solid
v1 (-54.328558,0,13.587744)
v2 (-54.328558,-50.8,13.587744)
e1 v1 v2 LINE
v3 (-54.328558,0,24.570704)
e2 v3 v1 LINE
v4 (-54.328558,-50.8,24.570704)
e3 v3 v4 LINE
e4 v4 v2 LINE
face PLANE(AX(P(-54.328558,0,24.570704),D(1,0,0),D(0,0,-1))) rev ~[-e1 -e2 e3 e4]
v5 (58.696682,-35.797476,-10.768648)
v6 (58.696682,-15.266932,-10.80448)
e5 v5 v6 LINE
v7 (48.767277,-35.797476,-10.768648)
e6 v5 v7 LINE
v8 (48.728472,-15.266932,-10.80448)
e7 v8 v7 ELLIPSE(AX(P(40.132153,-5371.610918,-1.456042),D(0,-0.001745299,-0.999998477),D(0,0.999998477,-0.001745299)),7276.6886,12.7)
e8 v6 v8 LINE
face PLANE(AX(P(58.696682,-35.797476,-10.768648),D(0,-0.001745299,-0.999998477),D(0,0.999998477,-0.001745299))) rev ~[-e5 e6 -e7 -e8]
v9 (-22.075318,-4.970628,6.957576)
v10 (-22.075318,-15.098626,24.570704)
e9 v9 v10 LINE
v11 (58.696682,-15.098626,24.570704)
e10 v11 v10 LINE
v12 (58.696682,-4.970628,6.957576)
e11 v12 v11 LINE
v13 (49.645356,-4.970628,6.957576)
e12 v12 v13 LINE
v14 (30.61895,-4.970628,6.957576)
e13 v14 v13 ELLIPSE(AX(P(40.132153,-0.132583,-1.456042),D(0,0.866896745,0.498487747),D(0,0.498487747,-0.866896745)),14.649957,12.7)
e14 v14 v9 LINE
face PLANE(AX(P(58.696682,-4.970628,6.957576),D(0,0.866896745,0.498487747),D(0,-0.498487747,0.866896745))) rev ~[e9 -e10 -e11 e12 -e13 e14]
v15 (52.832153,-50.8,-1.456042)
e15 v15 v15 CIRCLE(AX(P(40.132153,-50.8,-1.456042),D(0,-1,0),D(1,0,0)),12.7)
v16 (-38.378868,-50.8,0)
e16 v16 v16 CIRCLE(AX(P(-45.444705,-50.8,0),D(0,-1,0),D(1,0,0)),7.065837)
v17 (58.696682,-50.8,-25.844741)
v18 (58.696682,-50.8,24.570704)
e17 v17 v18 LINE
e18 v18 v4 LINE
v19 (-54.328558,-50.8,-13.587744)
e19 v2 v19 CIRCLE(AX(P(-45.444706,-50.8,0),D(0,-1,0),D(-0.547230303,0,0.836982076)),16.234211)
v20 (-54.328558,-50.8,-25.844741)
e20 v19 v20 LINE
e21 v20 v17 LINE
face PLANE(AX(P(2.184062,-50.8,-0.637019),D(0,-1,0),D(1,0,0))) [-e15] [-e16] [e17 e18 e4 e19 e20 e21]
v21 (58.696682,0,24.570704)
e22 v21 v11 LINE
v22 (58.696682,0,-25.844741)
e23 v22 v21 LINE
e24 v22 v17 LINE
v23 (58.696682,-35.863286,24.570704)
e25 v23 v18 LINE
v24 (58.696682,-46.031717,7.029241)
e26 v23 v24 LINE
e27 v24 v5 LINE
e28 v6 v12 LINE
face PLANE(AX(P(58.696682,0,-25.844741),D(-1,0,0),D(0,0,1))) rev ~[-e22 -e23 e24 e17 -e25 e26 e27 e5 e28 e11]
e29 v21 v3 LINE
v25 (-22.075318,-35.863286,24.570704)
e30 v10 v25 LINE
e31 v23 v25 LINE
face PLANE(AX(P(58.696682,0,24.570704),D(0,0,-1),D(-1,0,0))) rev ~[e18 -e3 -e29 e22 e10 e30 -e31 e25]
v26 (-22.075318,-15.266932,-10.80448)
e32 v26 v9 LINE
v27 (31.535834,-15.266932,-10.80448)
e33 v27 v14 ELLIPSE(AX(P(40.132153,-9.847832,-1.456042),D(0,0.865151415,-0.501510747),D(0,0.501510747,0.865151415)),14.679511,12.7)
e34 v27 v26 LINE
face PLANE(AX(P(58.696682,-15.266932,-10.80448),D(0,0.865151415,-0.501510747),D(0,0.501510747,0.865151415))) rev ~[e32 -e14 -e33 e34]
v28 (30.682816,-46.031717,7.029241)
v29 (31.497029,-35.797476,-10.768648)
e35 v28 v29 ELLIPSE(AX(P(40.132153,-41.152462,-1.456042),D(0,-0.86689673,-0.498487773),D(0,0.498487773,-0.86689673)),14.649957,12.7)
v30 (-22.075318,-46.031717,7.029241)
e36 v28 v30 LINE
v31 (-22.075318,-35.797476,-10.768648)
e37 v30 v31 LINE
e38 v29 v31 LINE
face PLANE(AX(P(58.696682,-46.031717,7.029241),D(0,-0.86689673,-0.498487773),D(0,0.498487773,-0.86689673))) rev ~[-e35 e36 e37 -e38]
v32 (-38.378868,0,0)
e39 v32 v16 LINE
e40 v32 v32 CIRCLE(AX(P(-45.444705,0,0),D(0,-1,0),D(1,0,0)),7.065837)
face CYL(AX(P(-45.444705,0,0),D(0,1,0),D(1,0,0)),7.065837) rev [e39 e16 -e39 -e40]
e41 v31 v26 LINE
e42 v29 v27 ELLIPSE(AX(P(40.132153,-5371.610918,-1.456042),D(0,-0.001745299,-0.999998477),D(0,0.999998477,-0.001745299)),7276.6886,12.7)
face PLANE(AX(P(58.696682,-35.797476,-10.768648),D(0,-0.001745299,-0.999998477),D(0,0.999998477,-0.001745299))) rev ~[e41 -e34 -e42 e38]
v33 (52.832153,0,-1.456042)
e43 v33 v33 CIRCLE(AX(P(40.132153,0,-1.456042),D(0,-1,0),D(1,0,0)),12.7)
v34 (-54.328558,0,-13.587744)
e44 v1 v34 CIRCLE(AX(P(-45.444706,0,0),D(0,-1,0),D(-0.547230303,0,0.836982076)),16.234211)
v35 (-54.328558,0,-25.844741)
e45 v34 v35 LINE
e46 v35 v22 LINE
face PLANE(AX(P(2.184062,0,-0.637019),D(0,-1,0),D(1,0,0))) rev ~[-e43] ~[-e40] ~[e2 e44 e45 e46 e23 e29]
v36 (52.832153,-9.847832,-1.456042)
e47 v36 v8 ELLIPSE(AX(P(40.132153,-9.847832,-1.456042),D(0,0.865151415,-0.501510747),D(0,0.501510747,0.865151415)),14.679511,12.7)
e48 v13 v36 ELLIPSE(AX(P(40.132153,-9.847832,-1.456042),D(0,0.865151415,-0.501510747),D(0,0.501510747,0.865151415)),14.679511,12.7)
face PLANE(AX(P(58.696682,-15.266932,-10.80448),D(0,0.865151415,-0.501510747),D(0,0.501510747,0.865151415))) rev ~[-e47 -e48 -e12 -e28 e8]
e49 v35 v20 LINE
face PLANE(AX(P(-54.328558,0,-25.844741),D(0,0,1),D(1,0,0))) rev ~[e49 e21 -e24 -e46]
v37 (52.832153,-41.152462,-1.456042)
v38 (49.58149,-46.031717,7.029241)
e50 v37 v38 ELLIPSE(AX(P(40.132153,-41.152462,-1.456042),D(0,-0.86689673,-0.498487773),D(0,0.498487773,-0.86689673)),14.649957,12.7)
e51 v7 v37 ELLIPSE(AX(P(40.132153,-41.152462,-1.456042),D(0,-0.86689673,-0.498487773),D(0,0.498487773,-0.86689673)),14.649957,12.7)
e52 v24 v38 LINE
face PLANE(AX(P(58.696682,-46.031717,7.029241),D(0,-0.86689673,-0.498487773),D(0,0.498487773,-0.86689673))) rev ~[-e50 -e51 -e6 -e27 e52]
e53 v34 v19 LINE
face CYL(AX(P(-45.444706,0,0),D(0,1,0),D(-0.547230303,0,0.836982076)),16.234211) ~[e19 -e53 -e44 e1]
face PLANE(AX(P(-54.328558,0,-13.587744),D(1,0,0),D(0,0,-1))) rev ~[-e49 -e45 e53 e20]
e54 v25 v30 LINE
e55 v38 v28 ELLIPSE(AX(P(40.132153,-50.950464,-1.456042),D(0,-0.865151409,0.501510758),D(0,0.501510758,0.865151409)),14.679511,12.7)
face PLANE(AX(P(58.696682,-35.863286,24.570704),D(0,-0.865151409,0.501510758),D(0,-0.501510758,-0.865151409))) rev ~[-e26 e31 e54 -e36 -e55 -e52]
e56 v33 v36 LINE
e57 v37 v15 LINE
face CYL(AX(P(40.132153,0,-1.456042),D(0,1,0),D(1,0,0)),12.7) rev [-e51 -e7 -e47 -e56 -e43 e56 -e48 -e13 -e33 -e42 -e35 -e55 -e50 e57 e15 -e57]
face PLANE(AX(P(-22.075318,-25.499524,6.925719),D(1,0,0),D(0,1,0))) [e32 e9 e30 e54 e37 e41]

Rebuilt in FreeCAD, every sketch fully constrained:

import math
import FreeCAD as App
import Part
import Sketcher
Q = App.Units.Quantity

doc = App.newDocument("Part")
params = doc.addObject("Spreadsheet::Sheet", "Params")
for row, (alias, value) in enumerate([
    ("sketch1_diameter", "1 in"),
    ("pad1_length", "2 in"),
    ("pocket1_length", "3.18 in"),
], start=1):
    params.set(f"A{row}", alias)
    params.set(f"B{row}", "=" + value)
    params.setAlias(f"B{row}", alias)

body = doc.addObject("PartDesign::Body", "Body")

sketch1 = body.newObject("Sketcher::SketchObject", "Sketch")
sketch1.AttachmentSupport = (doc.getObject("XZ_Plane"), [""])
sketch1.MapMode = "FlatFace"
sketch1.addGeometry([
    Part.LineSegment(App.Vector(58.696682, 24.570704, 0), App.Vector(-54.328558, 24.570704, 0)),
    Part.LineSegment(App.Vector(-54.328558, 24.570704, 0), App.Vector(-54.328558, 13.587744, 0)),
    Part.ArcOfCircle(Part.Circle(App.Vector(-45.444706, 0, 0), App.Vector(0, 0, 1), 16.234211), math.radians(123.177207), math.radians(236.822793)),
    Part.LineSegment(App.Vector(-54.328558, -13.587744, 0), App.Vector(-54.328558, -25.844741, 0)),
    Part.LineSegment(App.Vector(-54.328558, -25.844741, 0), App.Vector(58.696682, -25.844741, 0)),
    Part.LineSegment(App.Vector(58.696682, -25.844741, 0), App.Vector(58.696682, 24.570704, 0)),
    Part.Circle(App.Vector(-45.444705, 0, 0), App.Vector(0, 0, 1), 7.065837),
    Part.Circle(App.Vector(40.132153, -1.456042, 0), App.Vector(0, 0, 1), 12.7),
], False)
sketch1.addConstraint([
    Sketcher.Constraint("Coincident", 0, 2, 1, 1),
    Sketcher.Constraint("Coincident", 1, 2, 2, 1),
    Sketcher.Constraint("Coincident", 2, 2, 3, 1),
    Sketcher.Constraint("Coincident", 3, 2, 4, 1),
    Sketcher.Constraint("Coincident", 4, 2, 5, 1),
    Sketcher.Constraint("Coincident", 5, 2, 0, 1),
    Sketcher.Constraint("Horizontal", 0),
    Sketcher.Constraint("Vertical", 1),
    Sketcher.Constraint("Vertical", 3),
    Sketcher.Constraint("Horizontal", 4),
    Sketcher.Constraint("Vertical", 5),
    Sketcher.Constraint("Coincident", 6, 3, 2, 3),
    Sketcher.Constraint("Symmetric", 1, 2, 2, 2, -1),
    Sketcher.Constraint("Diameter", 7, Q("1 in")),
    Sketcher.Constraint("DistanceY", 1, 2, 1, 1, Q("0.4324 in")),
    Sketcher.Constraint("Radius", 2, 16.234211),
    Sketcher.Constraint("Diameter", 6, 14.131674),
    Sketcher.Constraint("DistanceX", 0, 2, 0, 1, 113.02524),
    Sketcher.Constraint("DistanceY", 2, 2, 7, 3, 12.131702),
    Sketcher.Constraint("DistanceY", 4, 2, 7, 3, 24.388699),
    Sketcher.Constraint("DistanceY", 5, 1, 5, 2, 50.415445),
    Sketcher.Constraint("DistanceX", 6, 3, 7, 3, 85.576858),
    Sketcher.Constraint("DistanceX", 2, 3, -1, 1, 45.444706),
])
sketch1.setExpression("Constraints[13]", "Params.sketch1_diameter")
pad1 = body.newObject("PartDesign::Pad", "Pad")
pad1.Profile = sketch1
pad1.setExpression("Length", "Params.pad1_length")

sketch2 = body.newObject("Sketcher::SketchObject", "Sketch001")
sketch2.AttachmentSupport = (doc.getObject("YZ_Plane"), [""])
sketch2.MapMode = "FlatFace"
sketch2.AttachmentOffset = App.Placement(App.Vector(0, 0, 58.696682), App.Rotation())
sketch2.addGeometry([
    Part.LineSegment(App.Vector(-46.031717, 7.029241, 0), App.Vector(-35.797476, -10.768648, 0)),
    Part.LineSegment(App.Vector(-35.797476, -10.768648, 0), App.Vector(-15.266932, -10.80448, 0)),
    Part.LineSegment(App.Vector(-15.266932, -10.80448, 0), App.Vector(-4.970628, 6.957576, 0)),
    Part.LineSegment(App.Vector(-4.970628, 6.957576, 0), App.Vector(-15.098626, 24.570704, 0)),
    Part.LineSegment(App.Vector(-15.098626, 24.570704, 0), App.Vector(-35.863286, 24.570704, 0)),
    Part.LineSegment(App.Vector(-35.863286, 24.570704, 0), App.Vector(-46.031717, 7.029241, 0)),
], False)
sketch2.addConstraint([
    Sketcher.Constraint("Coincident", 0, 2, 1, 1),
    Sketcher.Constraint("Coincident", 1, 2, 2, 1),
    Sketcher.Constraint("Coincident", 2, 2, 3, 1),
    Sketcher.Constraint("Coincident", 3, 2, 4, 1),
    Sketcher.Constraint("Coincident", 4, 2, 5, 1),
    Sketcher.Constraint("Coincident", 5, 2, 0, 1),
    Sketcher.Constraint("Horizontal", 4),
    Sketcher.Constraint("Parallel", 0, 3),
    Sketcher.Constraint("Parallel", 2, 5),
    Sketcher.Constraint("Equal", 0, 1),
    Sketcher.Constraint("Equal", 1, 2),
    Sketcher.Constraint("Angle", 0, Q("-60.099998 deg")),
    Sketcher.Constraint("Angle", 1, Q("-0.099998 deg")),
    Sketcher.Constraint("Angle", 2, Q("59.899999 deg")),
    Sketcher.Constraint("Distance", 5, 20.275599),
    Sketcher.Constraint("DistanceX", 4, 2, 4, 1, 20.76466),
    Sketcher.Constraint("DistanceY", 0, 2, -1, 1, 10.768648),
    Sketcher.Constraint("DistanceX", 0, 2, -1, 1, 35.797476),
])
pocket1 = body.newObject("PartDesign::Pocket", "Pocket")
pocket1.Profile = sketch2
pocket1.setExpression("Length", "Params.pocket1_length")

doc.recompute()
